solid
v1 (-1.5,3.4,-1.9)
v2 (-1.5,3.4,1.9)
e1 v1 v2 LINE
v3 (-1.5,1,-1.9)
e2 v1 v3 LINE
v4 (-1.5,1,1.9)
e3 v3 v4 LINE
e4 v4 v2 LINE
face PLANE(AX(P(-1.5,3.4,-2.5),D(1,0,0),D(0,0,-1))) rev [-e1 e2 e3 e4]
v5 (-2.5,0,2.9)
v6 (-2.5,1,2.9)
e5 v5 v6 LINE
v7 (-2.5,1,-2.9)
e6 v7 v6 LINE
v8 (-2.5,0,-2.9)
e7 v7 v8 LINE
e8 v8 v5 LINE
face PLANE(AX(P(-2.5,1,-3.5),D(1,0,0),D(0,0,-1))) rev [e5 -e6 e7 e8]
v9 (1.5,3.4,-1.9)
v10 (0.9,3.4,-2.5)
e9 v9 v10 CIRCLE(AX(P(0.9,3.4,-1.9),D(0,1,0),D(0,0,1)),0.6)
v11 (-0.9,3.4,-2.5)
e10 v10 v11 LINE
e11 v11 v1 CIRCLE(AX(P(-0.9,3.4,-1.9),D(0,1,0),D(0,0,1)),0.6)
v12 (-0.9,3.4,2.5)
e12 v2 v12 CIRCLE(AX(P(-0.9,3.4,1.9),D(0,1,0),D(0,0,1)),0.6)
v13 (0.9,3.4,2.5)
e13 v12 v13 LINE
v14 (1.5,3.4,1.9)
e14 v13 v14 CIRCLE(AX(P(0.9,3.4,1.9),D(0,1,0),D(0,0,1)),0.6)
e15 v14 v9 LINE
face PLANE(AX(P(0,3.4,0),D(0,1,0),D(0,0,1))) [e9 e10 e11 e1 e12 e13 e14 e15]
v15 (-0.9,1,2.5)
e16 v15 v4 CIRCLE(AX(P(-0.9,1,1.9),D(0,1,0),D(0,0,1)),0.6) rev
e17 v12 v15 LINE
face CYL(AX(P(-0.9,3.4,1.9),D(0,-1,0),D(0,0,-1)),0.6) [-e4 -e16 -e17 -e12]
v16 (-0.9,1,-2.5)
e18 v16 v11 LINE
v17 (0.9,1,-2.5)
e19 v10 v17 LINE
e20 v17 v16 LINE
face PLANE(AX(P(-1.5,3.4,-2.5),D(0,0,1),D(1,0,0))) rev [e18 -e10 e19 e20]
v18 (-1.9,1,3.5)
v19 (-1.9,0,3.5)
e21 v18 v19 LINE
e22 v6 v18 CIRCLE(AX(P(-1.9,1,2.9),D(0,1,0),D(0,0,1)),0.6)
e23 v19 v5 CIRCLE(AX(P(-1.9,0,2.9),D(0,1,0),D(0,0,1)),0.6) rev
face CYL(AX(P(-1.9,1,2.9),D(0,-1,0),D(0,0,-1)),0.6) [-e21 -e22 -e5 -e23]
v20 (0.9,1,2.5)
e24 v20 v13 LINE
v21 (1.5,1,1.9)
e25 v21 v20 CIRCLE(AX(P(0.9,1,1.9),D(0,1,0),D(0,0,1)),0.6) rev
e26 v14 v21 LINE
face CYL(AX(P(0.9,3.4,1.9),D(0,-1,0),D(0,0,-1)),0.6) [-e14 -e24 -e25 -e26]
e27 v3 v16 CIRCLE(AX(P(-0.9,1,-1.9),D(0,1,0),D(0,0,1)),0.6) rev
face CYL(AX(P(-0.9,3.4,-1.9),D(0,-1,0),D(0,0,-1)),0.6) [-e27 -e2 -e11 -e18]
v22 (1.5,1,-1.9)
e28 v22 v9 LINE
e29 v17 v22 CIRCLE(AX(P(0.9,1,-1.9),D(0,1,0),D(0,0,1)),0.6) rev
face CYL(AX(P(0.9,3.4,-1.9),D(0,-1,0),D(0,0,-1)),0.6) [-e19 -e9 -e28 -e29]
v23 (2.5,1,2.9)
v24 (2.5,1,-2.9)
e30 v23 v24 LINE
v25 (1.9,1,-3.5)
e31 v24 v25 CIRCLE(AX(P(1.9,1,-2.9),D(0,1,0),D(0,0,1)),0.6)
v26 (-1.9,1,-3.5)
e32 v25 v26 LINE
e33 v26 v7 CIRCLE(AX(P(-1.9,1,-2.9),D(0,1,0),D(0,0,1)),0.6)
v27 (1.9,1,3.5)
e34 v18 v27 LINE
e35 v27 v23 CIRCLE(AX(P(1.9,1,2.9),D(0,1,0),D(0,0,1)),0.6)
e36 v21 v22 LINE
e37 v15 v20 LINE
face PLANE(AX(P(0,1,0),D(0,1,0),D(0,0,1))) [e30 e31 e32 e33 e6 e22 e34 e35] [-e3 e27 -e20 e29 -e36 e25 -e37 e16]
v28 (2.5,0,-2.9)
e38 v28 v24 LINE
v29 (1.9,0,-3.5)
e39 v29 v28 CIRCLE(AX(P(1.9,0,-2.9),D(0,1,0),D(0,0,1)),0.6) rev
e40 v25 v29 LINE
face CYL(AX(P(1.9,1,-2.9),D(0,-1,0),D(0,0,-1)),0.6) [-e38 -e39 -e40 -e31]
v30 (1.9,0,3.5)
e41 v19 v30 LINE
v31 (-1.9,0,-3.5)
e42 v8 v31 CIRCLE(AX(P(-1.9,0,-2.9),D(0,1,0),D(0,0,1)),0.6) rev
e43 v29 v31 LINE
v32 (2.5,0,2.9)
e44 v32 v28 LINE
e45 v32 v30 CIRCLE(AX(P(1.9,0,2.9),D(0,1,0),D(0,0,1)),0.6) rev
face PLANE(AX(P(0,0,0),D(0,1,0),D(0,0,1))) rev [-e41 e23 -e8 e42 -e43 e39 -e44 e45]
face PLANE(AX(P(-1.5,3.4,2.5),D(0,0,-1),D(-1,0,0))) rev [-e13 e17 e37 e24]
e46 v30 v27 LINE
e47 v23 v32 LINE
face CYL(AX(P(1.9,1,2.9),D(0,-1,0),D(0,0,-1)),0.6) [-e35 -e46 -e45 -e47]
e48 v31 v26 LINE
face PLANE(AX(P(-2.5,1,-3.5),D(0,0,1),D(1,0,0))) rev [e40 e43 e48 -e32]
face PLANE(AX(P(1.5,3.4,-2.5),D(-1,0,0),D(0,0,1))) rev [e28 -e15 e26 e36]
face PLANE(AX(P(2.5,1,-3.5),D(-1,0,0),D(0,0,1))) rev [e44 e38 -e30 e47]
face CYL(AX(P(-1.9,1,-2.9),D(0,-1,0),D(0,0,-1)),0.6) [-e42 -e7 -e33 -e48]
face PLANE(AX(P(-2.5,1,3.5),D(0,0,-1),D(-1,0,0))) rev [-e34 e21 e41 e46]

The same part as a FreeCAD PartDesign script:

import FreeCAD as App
import Part
import Sketcher


def edges_at(feature, points):
    """Names of the edges that pass closest to the given points."""
    edges = feature.Shape.Edges
    near = lambda p: min(range(len(edges)), key=lambda i: edges[i].distToShape(Part.Vertex(*p))[0])
    return sorted({f"Edge{near(p) + 1}" for p in points})


def add_polygon(sketch, points):
    """Adds a closed chain of lines whose ends are joined by coincident constraints."""
    first, n = sketch.GeometryCount, len(points)
    for a, b in zip(points, points[1:] + points[:1]):
        sketch.addGeometry(Part.LineSegment(App.Vector(*a, 0), App.Vector(*b, 0)), False)
    for i in range(n):
        sketch.addConstraint(Sketcher.Constraint("Coincident", first + i, 2, first + (i + 1) % n, 1))

doc = App.newDocument("Part")
body = doc.addObject("PartDesign::Body", "Body")

sketch1 = doc.addObject("Sketcher::SketchObject", "Sketch")
body.addObject(sketch1)
sketch1.AttachmentSupport = (doc.XZ_Plane, [""])
sketch1.MapMode = "FlatFace"
add_polygon(sketch1, [(-2, -4), (-2, 4), (2, 4), (2, -4)])
sketch1.addConstraint([
    Sketcher.Constraint("Vertical", 0),
    Sketcher.Constraint("Horizontal", 1),
    Sketcher.Constraint("Vertical", 2),
    Sketcher.Constraint("Horizontal", 3),
    Sketcher.Constraint("Symmetric", 0, 2, 2, 2, -1, 1),
    Sketcher.Constraint("DistanceX", 1, 1, 1, 2, 5.0),
    Sketcher.Constraint("DistanceY", 0, 1, 0, 2, 7.0),
])
pad1 = doc.addObject("PartDesign::Pad", "Pad")
body.addObject(pad1)
pad1.Profile = sketch1
pad1.Length = 1
pad1.Reversed = True

sketch2 = doc.addObject("Sketcher::SketchObject", "Sketch001")
body.addObject(sketch2)
sketch2.AttachmentSupport = (doc.XZ_Plane, [""])
sketch2.MapMode = "FlatFace"
sketch2.AttachmentOffset = App.Placement(App.Vector(0, 0, -1), App.Rotation())
add_polygon(sketch2, [(-1.5, -2.5), (-1.5, 2.5), (1.5, 2.5), (1.5, -2.5)])
sketch2.addConstraint([
    Sketcher.Constraint("Vertical", 0),
    Sketcher.Constraint("Horizontal", 1),
    Sketcher.Constraint("Vertical", 2),
    Sketcher.Constraint("Horizontal", 3),
    Sketcher.Constraint("Symmetric", 0, 2, 2, 2, -1, 1),
    Sketcher.Constraint("DistanceX", 1, 1, 1, 2, 3.0),
    Sketcher.Constraint("DistanceY", 0, 1, 0, 2, 5.0),
])
pad2 = doc.addObject("PartDesign::Pad", "Pad001")
body.addObject(pad2)
pad2.Profile = sketch2
pad2.Length = 2.4
pad2.Reversed = True
doc.recompute()

fillet = doc.addObject("PartDesign::Fillet", "Fillet")
body.addObject(fillet)
fillet.Base = (pad2, edges_at(pad2, [
    (1.5, 2.2, 2.5),
    (1.5, 2.2, -2.5),
    (-1.5, 2.2, -2.5),
    (-1.5, 2.2, 2.5),
    (2.5, 0.5, 3.5),
    (-2.5, 0.5, 3.5),
    (-2.5, 0.5, -3.5),
    (2.5, 0.5, -3.5),
]))
fillet.Radius = 0.6

doc.recompute()
